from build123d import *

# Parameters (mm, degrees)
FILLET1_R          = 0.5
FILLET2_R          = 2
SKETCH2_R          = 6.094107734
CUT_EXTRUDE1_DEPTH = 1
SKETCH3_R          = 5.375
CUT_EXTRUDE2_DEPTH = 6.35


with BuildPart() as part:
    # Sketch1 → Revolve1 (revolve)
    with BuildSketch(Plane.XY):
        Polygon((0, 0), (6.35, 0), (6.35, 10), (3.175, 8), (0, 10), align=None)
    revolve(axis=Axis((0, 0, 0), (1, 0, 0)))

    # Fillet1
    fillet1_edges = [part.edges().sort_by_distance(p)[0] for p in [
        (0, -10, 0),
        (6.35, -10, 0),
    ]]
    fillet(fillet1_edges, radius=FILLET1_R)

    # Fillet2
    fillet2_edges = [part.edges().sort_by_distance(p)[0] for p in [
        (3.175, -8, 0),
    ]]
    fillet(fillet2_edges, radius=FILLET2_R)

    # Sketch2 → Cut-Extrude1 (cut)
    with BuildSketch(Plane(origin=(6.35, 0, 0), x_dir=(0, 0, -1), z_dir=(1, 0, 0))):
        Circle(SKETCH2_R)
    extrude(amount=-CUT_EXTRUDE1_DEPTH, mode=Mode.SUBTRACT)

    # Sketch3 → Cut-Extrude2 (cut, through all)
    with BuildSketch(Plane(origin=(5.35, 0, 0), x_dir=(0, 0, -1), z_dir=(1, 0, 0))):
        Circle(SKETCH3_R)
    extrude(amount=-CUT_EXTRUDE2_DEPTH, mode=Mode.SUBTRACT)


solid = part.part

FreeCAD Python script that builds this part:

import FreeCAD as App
import Part
import Sketcher
from FreeCAD import Vector
Q = App.Units.Quantity


def edges_at(feature, points):
    """Names of the edges that pass closest to the given points."""
    edges = feature.Shape.Edges
    near = lambda p: min(range(len(edges)), key=lambda i: edges[i].distToShape(Part.Vertex(*p))[0])
    return sorted({f"Edge{near(p) + 1}" for p in points})

doc = App.newDocument("Part")
body = doc.addObject("PartDesign::Body", "Body")

# Sketch on XY plane
sketch1 = body.newObject("Sketcher::SketchObject", "Sketch")
sketch1.AttachmentSupport = (doc.getObject("XY_Plane"), [""])
sketch1.MapMode = "FlatFace"
sketch1.addGeometry(Part.LineSegment(Vector(0, 0, 0), Vector(6.3, 0, 0)), False)
sketch1.addGeometry(Part.LineSegment(Vector(6.3, 0, 0), Vector(6.3, 10, 0)), False)
sketch1.addGeometry(Part.LineSegment(Vector(6.3, 10, 0), Vector(3.2, 8, 0)), False)
sketch1.addGeometry(Part.LineSegment(Vector(3.2, 8, 0), Vector(0, 10, 0)), False)
sketch1.addGeometry(Part.LineSegment(Vector(0, 10, 0), Vector(0, 0, 0)), False)
sketch1.addConstraint(Sketcher.Constraint("Coincident", 0, 2, 1, 1))
sketch1.addConstraint(Sketcher.Constraint("Coincident", 1, 2, 2, 1))
sketch1.addConstraint(Sketcher.Constraint("Coincident", 2, 2, 3, 1))
sketch1.addConstraint(Sketcher.Constraint("Coincident", 3, 2, 4, 1))
sketch1.addConstraint(Sketcher.Constraint("Coincident", 4, 2, 0, 1))
sketch1.addConstraint(Sketcher.Constraint("Horizontal", 0))
sketch1.addConstraint(Sketcher.Constraint("Vertical", 1))
sketch1.addConstraint(Sketcher.Constraint("Vertical", 4))
sketch1.addConstraint(Sketcher.Constraint("Coincident", 4, 2, -1, 1))
sketch1.addConstraint(Sketcher.Constraint("Horizontal", 1, 2, 3, 2))
sketch1.addConstraint(Sketcher.Constraint("Equal", 2, 3))
sketch1.addConstraint(Sketcher.Constraint("DistanceY", 1, 1, 1, 2, Q("10 mm")))
sketch1.addConstraint(Sketcher.Constraint("DistanceY", -1, 1, 2, 2, Q("8 mm")))
sketch1.addConstraint(Sketcher.Constraint("DistanceX", 0, 1, 0, 2, Q("6.35 mm")))
revolution = body.newObject("PartDesign::Revolution", "Revolution")
revolution.Profile = sketch1
revolution.ReferenceAxis = (sketch1, ["H_Axis"])
revolution.Angle = 360
doc.recompute()

fillet = body.newObject("PartDesign::Fillet", "Fillet")
fillet.Base = (revolution, edges_at(revolution, [(0, -10, 0), (6.35, -10, 0)]))
fillet.Radius = 0.5
doc.recompute()

fillet2 = body.newObject("PartDesign::Fillet", "Fillet001")
fillet2.Base = (fillet, edges_at(fillet, [(3.175, -8, 0)]))
fillet2.Radius = 2

# Sketch on YZ plane
sketch2 = body.newObject("Sketcher::SketchObject", "Sketch001")
sketch2.AttachmentSupport = (doc.getObject("YZ_Plane"), [""])
sketch2.MapMode = "FlatFace"
sketch2.AttachmentOffset = App.Placement(Vector(0, 0, 6.35), App.Rotation())
sketch2.addGeometry(Part.Circle(Vector(0, 0, 0), Vector(0, 0, 1), 6), False)
sketch2.addConstraint(Sketcher.Constraint("Coincident", 0, 3, -1, 1))
sketch2.addConstraint(Sketcher.Constraint("Diameter", 0, Q("12.188215 mm")))
pocket1 = body.newObject("PartDesign::Pocket", "Pocket")
pocket1.Profile = sketch2
pocket1.Length = 1

# Sketch on YZ plane
sketch3 = body.newObject("Sketcher::SketchObject", "Sketch002")
sketch3.AttachmentSupport = (doc.getObject("YZ_Plane"), [""])
sketch3.MapMode = "FlatFace"
sketch3.AttachmentOffset = App.Placement(Vector(0, 0, 5.35), App.Rotation())
sketch3.addGeometry(Part.Circle(Vector(0, 0, 0), Vector(0, 0, 1), 5), False)
sketch3.addConstraint(Sketcher.Constraint("Coincident", 0, 3, -1, 1))
sketch3.addConstraint(Sketcher.Constraint("Diameter", 0, Q("10.75 mm")))
pocket2 = body.newObject("PartDesign::Pocket", "Pocket001")
pocket2.Profile = sketch3
pocket2.Type = "ThroughAll"

doc.recompute()
